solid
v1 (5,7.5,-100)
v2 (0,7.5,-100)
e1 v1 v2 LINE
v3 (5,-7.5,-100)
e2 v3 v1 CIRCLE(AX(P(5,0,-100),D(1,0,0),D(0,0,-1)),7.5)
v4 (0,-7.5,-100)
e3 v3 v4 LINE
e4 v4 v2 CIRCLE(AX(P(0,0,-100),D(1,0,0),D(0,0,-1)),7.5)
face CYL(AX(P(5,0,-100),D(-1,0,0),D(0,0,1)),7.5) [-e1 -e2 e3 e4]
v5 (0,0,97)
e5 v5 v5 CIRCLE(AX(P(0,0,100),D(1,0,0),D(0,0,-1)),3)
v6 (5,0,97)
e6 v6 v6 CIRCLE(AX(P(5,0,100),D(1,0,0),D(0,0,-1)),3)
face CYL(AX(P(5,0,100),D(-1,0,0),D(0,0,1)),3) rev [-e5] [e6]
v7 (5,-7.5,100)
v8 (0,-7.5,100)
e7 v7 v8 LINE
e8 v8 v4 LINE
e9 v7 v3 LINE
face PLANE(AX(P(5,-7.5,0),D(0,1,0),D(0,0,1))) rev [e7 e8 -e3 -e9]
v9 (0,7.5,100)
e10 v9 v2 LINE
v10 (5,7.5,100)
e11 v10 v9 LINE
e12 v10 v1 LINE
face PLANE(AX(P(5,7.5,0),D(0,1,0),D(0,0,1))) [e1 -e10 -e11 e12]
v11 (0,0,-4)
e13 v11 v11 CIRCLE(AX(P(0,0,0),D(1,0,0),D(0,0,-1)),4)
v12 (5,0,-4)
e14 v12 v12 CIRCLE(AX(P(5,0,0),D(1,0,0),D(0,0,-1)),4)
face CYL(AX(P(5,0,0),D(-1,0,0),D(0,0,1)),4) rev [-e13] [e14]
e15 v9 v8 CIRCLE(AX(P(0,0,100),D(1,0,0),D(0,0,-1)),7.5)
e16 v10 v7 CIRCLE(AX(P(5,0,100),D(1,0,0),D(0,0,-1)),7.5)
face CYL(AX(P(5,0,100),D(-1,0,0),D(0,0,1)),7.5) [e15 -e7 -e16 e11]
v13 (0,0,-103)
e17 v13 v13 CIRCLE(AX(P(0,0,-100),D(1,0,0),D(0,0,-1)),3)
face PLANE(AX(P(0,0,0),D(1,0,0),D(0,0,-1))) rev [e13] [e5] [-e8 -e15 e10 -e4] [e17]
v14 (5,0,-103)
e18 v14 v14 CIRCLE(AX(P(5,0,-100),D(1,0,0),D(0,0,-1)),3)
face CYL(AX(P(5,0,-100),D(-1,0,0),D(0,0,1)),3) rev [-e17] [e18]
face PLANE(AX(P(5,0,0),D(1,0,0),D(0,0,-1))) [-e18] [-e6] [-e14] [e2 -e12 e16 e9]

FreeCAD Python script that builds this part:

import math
import FreeCAD as App
import Part
import Sketcher
Q = App.Units.Quantity

doc = App.newDocument("Part")
body = doc.addObject("PartDesign::Body", "Body")

sketch1 = doc.addObject("Sketcher::SketchObject", "Sketch")
body.addObject(sketch1)
sketch1.AttachmentSupport = (doc.YZ_Plane, [""])
sketch1.MapMode = "FlatFace"
sketch1.addGeometry([
    Part.LineSegment(App.Vector(7.5, -100, 0), App.Vector(7.5, 100, 0)),
    Part.ArcOfCircle(Part.Circle(App.Vector(0, 100, 0), App.Vector(0, 0, 1), 7.5), math.radians(0), math.radians(180)),
    Part.LineSegment(App.Vector(-7.5, 100, 0), App.Vector(-7.5, -100, 0)),
    Part.ArcOfCircle(Part.Circle(App.Vector(0, -100, 0), App.Vector(0, 0, 1), 7.5), math.radians(180), math.radians(360)),
    Part.Circle(App.Vector(0, -100, 0), App.Vector(0, 0, 1), 3),
    Part.Circle(App.Vector(0, 0, 0), App.Vector(0, 0, 1), 4),
    Part.Circle(App.Vector(0, 100, 0), App.Vector(0, 0, 1), 3),
], False)
sketch1.addConstraint([
    Sketcher.Constraint("Tangent", 0, 2, 1, 1),
    Sketcher.Constraint("Tangent", 1, 2, 2, 1),
    Sketcher.Constraint("Tangent", 2, 2, 3, 1),
    Sketcher.Constraint("Tangent", 3, 2, 0, 1),
    Sketcher.Constraint("Vertical", 0),
    Sketcher.Constraint("Vertical", 2),
    Sketcher.Constraint("Coincident", 5, 3, -1, 1),
    Sketcher.Constraint("Coincident", 4, 3, 3, 3),
    Sketcher.Constraint("Coincident", 6, 3, 1, 3),
    Sketcher.Constraint("Equal", 4, 6),
    Sketcher.Constraint("Symmetric", 1, 3, 3, 3, -1, 1),
    Sketcher.Constraint("Diameter", 4, Q("6 mm")),
    Sketcher.Constraint("Diameter", 5, Q("8 mm")),
    Sketcher.Constraint("Radius", 1, Q("7.5 mm")),
    Sketcher.Constraint("DistanceY", 0, 1, 0, 2, Q("200 mm")),
])
pad1 = doc.addObject("PartDesign::Pad", "Pad")
body.addObject(pad1)
pad1.Profile = sketch1
pad1.Length = 5

doc.recompute()
